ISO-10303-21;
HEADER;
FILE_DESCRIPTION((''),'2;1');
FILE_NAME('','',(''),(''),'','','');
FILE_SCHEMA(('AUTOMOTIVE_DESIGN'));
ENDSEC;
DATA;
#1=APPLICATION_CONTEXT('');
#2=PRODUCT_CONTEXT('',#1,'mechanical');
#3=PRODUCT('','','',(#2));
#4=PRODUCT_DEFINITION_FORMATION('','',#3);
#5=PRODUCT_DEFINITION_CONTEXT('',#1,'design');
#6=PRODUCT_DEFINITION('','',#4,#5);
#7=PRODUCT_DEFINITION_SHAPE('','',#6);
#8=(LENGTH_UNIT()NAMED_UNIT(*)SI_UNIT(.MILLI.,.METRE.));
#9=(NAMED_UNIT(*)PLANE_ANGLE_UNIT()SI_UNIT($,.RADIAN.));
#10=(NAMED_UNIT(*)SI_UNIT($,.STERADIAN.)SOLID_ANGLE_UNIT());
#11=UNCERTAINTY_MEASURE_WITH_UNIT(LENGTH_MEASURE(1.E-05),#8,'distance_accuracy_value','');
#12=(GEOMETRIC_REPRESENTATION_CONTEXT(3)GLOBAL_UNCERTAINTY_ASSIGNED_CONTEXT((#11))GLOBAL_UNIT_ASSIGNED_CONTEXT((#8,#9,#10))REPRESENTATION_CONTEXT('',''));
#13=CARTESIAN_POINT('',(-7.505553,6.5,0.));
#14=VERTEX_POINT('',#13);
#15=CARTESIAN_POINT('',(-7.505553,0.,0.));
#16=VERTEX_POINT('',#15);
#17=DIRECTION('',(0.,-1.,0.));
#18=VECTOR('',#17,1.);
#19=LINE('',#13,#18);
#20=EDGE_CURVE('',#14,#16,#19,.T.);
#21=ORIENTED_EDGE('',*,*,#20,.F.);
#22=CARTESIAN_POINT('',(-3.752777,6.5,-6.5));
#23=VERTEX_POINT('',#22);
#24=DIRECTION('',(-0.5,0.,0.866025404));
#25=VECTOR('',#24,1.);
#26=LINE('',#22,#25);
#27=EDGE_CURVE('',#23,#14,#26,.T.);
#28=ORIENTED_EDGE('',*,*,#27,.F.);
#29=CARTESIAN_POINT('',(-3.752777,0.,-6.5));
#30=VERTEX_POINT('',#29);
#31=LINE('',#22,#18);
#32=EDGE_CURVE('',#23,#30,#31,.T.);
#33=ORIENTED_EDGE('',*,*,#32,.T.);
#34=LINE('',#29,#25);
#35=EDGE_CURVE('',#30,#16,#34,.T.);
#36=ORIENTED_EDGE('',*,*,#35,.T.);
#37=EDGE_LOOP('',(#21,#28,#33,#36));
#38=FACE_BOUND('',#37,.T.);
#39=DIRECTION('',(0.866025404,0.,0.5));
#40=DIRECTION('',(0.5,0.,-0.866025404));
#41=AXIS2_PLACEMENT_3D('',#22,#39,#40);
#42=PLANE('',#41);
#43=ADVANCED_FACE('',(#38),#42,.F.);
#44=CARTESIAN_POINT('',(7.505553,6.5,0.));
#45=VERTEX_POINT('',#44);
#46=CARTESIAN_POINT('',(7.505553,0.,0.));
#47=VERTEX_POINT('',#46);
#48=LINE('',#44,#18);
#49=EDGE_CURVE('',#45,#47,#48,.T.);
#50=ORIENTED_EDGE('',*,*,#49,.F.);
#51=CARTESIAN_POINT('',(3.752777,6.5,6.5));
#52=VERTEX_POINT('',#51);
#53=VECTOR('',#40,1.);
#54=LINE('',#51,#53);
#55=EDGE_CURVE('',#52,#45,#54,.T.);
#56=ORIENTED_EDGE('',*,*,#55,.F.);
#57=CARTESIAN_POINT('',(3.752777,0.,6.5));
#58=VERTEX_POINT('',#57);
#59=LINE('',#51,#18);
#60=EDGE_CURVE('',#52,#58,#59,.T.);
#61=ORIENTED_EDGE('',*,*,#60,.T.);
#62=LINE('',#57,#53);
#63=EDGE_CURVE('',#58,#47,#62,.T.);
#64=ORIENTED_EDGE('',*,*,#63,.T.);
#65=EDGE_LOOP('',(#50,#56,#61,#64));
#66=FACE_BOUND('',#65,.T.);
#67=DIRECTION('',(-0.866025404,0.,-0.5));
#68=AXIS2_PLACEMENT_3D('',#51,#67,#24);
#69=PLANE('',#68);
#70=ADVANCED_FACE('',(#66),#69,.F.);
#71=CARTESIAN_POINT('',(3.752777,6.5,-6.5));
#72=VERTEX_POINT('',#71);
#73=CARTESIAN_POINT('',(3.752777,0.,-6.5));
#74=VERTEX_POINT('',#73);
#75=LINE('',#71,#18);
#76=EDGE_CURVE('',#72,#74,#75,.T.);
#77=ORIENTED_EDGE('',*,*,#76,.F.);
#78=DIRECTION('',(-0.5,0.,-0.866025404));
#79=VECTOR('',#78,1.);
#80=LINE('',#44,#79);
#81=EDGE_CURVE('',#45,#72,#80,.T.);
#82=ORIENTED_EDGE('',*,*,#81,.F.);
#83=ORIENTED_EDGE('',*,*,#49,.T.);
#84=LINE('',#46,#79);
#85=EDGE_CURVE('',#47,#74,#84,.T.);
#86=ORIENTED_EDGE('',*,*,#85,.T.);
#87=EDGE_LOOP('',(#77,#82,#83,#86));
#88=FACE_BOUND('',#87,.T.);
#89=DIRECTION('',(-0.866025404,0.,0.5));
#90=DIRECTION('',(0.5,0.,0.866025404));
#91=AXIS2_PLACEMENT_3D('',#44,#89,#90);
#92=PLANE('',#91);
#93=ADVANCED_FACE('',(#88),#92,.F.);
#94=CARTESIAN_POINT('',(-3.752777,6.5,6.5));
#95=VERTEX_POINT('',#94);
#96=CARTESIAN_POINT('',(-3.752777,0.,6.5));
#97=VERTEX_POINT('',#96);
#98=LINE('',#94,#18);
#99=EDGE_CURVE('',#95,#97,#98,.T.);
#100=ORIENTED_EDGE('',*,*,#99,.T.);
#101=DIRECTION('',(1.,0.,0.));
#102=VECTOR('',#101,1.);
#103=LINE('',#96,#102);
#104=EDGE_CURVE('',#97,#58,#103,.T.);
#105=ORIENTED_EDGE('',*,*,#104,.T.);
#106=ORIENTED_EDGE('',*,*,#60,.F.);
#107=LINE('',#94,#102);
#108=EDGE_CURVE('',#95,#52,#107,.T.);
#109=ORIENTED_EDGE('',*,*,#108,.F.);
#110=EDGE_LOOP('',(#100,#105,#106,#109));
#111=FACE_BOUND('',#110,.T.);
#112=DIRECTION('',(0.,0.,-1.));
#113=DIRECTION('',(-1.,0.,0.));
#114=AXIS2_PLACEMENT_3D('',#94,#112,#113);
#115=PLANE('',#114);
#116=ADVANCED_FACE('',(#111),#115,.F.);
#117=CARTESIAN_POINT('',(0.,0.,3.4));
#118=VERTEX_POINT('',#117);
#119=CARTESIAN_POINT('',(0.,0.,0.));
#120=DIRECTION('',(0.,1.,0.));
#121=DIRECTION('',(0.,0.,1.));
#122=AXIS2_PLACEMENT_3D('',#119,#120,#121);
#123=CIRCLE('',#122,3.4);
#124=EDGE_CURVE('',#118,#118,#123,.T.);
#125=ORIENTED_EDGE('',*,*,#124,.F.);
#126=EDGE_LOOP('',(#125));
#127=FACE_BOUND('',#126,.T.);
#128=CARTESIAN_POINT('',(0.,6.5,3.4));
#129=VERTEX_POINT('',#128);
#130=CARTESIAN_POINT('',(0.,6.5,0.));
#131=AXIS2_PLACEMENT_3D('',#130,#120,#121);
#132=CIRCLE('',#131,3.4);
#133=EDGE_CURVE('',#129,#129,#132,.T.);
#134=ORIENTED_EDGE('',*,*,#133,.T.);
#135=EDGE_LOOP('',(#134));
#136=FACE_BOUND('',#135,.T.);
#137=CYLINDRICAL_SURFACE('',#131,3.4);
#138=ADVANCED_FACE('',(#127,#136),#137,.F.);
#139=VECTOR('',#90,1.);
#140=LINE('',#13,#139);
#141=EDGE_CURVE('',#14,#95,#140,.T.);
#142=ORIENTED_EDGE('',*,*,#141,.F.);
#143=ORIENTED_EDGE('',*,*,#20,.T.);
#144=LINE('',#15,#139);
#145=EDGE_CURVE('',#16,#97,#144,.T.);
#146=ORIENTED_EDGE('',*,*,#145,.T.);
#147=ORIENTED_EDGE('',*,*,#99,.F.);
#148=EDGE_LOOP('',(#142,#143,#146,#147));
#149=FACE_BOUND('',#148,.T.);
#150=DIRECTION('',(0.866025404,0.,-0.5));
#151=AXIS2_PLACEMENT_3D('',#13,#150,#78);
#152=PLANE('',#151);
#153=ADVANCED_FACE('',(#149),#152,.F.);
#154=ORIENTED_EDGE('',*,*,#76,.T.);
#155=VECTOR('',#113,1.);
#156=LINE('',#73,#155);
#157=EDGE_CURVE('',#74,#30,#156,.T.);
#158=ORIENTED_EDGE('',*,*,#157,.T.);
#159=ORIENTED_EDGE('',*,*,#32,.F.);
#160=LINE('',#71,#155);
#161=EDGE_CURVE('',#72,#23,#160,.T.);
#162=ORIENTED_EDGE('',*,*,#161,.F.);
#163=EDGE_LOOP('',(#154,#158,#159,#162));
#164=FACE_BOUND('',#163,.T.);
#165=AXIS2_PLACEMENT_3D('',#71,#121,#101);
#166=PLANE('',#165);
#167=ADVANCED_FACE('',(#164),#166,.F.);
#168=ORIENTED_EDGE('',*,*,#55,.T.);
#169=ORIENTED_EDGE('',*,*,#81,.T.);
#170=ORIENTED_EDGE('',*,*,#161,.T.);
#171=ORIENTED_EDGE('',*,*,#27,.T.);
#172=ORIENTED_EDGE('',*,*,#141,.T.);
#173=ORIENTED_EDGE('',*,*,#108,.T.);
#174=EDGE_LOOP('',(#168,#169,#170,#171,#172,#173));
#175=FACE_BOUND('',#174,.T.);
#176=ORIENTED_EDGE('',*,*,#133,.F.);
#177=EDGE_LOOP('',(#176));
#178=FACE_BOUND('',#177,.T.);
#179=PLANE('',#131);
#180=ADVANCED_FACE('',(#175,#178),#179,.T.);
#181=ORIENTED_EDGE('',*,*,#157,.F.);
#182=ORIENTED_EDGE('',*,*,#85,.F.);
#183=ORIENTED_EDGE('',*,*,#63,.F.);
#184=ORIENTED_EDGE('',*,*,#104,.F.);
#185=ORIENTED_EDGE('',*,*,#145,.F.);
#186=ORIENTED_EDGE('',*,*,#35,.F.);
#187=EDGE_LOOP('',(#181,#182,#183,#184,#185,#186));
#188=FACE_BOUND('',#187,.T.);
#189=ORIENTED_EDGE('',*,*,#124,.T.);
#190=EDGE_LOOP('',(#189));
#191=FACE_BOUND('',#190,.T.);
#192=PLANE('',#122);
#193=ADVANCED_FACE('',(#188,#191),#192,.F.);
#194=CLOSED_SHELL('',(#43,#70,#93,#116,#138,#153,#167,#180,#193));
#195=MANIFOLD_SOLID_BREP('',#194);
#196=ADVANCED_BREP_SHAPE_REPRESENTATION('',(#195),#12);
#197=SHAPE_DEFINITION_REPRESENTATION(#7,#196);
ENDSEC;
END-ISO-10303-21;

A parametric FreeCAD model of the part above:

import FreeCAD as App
import Part
import Sketcher
Q = App.Units.Quantity


def add_polygon(sketch, points):
    """Adds a closed chain of lines whose ends are joined by coincident constraints."""
    first, n = sketch.GeometryCount, len(points)
    for a, b in zip(points, points[1:] + points[:1]):
        sketch.addGeometry(Part.LineSegment(App.Vector(*a, 0), App.Vector(*b, 0)), False)
    for i in range(n):
        sketch.addConstraint(Sketcher.Constraint("Coincident", first + i, 2, first + (i + 1) % n, 1))

doc = App.newDocument("Part")
body = doc.addObject("PartDesign::Body", "Body")

sketch1 = body.newObject("Sketcher::SketchObject", "Sketch")
sketch1.AttachmentSupport = (doc.getObject("XZ_Plane"), [""])
sketch1.MapMode = "FlatFace"
add_polygon(sketch1, [(4, -6), (-4, -6), (-8, 0), (-4, 6), (4, 6), (8, 0)])
sketch1.addConstraint([
    Sketcher.Constraint("Horizontal", 0),
    Sketcher.Constraint("Horizontal", 3),
    Sketcher.Constraint("Symmetric", 0, 2, 3, 2, -1, 1),
    Sketcher.Constraint("Symmetric", 1, 2, 4, 2, -1, 1),
    Sketcher.Constraint("PointOnObject", 1, 2, -1),
    Sketcher.Constraint("Parallel", 2, 5),
    Sketcher.Constraint("Vertical", 0, 2, 2, 2),
    Sketcher.Constraint("Angle", 1, Q("120 deg")),
    Sketcher.Constraint("DistanceY", 0, 2, 2, 2, 13.0),
    Sketcher.Constraint("DistanceX", 0, 2, 0, 1, 7.505554),
])
pad1 = body.newObject("PartDesign::Pad", "Pad")
pad1.Profile = sketch1
pad1.Length = 6.5
pad1.Reversed = True

sketch2 = body.newObject("Sketcher::SketchObject", "Sketch001")
sketch2.AttachmentSupport = (doc.getObject("XZ_Plane"), [""])
sketch2.MapMode = "FlatFace"
sketch2.AttachmentOffset = App.Placement(App.Vector(0, 0, -6.5), App.Rotation())
sketch2.addGeometry(Part.Circle(App.Vector(0, 0, 0), App.Vector(0, 0, 1), 3.4), False)
sketch2.addConstraint([
    Sketcher.Constraint("Coincident", 0, 3, -1, 1),
    Sketcher.Constraint("Diameter", 0, 6.8),
])
doc.recompute()
hole = body.newObject("PartDesign::Hole", "Hole")
hole.Profile = sketch2
hole.ThreadType = "None"
hole.Diameter = 6.8
hole.DepthType = "ThroughAll"
hole.Reversed = True

doc.recompute()
